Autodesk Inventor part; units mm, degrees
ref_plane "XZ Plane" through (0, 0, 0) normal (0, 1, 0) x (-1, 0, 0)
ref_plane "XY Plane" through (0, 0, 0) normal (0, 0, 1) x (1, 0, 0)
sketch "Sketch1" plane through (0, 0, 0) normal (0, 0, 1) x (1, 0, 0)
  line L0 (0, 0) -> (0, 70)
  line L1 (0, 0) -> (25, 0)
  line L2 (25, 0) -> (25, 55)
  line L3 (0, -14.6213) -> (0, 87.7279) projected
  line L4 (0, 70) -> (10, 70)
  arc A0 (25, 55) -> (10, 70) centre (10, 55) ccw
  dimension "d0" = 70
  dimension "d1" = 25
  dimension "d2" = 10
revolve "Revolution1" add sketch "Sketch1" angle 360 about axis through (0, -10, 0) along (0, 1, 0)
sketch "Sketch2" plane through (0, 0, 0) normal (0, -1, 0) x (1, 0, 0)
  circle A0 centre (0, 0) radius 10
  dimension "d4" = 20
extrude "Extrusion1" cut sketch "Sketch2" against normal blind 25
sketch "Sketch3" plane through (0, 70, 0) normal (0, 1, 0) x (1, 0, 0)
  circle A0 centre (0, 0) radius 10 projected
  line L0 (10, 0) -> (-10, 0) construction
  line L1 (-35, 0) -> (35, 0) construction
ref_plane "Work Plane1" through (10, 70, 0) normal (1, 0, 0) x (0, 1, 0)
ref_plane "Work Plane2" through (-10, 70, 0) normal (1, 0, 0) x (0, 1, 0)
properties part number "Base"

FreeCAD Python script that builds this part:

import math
import FreeCAD as App
import Part
import Sketcher
from FreeCAD import Vector
Q = App.Units.Quantity

doc = App.newDocument("Part")
body = doc.addObject("PartDesign::Body", "Body")

# Sketch on XY plane
sketch1 = doc.addObject("Sketcher::SketchObject", "Sketch")
body.addObject(sketch1)
sketch1.AttachmentSupport = (doc.XY_Plane, [""])
sketch1.MapMode = "FlatFace"
sketch1.addGeometry([
    Part.LineSegment(Vector(0, 70, 0), Vector(0, 0, 0)),  # 0
    Part.LineSegment(Vector(0, 0, 0), Vector(25, 0, 0)),  # 1
    Part.LineSegment(Vector(25, 0, 0), Vector(25, 55, 0)),  # 2
    Part.ArcOfCircle(Part.Circle(Vector(10, 55, 0), Vector(0, 0, 1), 15), math.radians(0), math.radians(90)),  # 3
    Part.LineSegment(Vector(10, 70, 0), Vector(0, 70, 0)),  # 4
], False)
sketch1.addConstraint([
    Sketcher.Constraint("Coincident", 0, 2, 1, 1),
    Sketcher.Constraint("Coincident", 1, 2, 2, 1),
    Sketcher.Constraint("Tangent", 2, 2, 3, 1),
    Sketcher.Constraint("Tangent", 3, 2, 4, 1),
    Sketcher.Constraint("Coincident", 4, 2, 0, 1),
    Sketcher.Constraint("Vertical", 0),
    Sketcher.Constraint("Horizontal", 1),
    Sketcher.Constraint("Vertical", 2),
    Sketcher.Constraint("Horizontal", 4),
    Sketcher.Constraint("Coincident", 0, 2, -1, 1),
    Sketcher.Constraint("DistanceX", 1, 1, 1, 2, Q("25 mm")),
    Sketcher.Constraint("DistanceX", 4, 2, 4, 1, Q("10 mm")),
    Sketcher.Constraint("DistanceY", 0, 2, 0, 1, Q("70 mm")),
])
revolution = doc.addObject("PartDesign::Revolution", "Revolution")
body.addObject(revolution)
revolution.Profile = sketch1
revolution.ReferenceAxis = (sketch1, ["V_Axis"])
revolution.Angle = 360

# Sketch on XZ plane
sketch2 = doc.addObject("Sketcher::SketchObject", "Sketch001")
body.addObject(sketch2)
sketch2.AttachmentSupport = (doc.XZ_Plane, [""])
sketch2.MapMode = "FlatFace"
sketch2.addGeometry(Part.Circle(Vector(0, 0, 0), Vector(0, 0, 1), 10), False)
sketch2.addConstraint([
    Sketcher.Constraint("Coincident", 0, 3, -1, 1),
    Sketcher.Constraint("Diameter", 0, Q("20 mm")),
])
pocket1 = doc.addObject("PartDesign::Pocket", "Pocket")
body.addObject(pocket1)
pocket1.Profile = sketch2
pocket1.Length = 25

doc.recompute()
